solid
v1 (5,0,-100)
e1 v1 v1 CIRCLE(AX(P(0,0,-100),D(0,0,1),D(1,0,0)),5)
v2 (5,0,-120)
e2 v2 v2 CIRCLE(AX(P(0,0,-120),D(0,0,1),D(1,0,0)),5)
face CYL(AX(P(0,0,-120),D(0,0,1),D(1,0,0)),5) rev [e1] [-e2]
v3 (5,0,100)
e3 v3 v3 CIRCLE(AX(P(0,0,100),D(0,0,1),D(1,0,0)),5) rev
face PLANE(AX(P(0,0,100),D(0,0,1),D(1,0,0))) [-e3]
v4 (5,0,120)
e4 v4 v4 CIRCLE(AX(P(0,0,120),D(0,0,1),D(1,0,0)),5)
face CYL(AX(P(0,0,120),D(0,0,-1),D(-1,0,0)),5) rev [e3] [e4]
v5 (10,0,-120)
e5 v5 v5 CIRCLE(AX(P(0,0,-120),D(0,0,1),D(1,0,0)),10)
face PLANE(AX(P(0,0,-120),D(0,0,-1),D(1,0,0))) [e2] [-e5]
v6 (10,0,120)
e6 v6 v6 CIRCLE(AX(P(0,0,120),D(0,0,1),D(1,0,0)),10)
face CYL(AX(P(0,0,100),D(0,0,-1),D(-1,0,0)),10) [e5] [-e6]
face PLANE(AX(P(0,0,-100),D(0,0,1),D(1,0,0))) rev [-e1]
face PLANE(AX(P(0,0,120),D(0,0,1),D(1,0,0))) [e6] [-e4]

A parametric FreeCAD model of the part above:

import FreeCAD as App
import Part
import Sketcher
Q = App.Units.Quantity

doc = App.newDocument("Part")
body = doc.addObject("PartDesign::Body", "Body")

# Sketch on XY plane
sketch1 = doc.addObject("Sketcher::SketchObject", "Sketch")
body.addObject(sketch1)
sketch1.AttachmentSupport = (doc.XY_Plane, [""])
sketch1.MapMode = "FlatFace"
sketch1.addGeometry(Part.Circle(App.Vector(0, 0, 0), App.Vector(0, 0, 1), 10), False)
sketch1.addConstraint(Sketcher.Constraint("Coincident", 0, 3, -1, 1))
sketch1.addConstraint(Sketcher.Constraint("Diameter", 0, Q("20 mm")))
pad1 = doc.addObject("PartDesign::Pad", "Pad")
body.addObject(pad1)
pad1.Profile = sketch1
pad1.Length = 200
pad1.Midplane = True

# Sketch on XY plane
sketch2 = doc.addObject("Sketcher::SketchObject", "Sketch001")
body.addObject(sketch2)
sketch2.AttachmentSupport = (doc.XY_Plane, [""])
sketch2.MapMode = "FlatFace"
sketch2.AttachmentOffset = App.Placement(App.Vector(0, 0, 120), App.Rotation())
sketch2.addGeometry(Part.Circle(App.Vector(0, 0, 0), App.Vector(0, 0, 1), 10), False)
sketch2.addGeometry(Part.Circle(App.Vector(0, 0, 0), App.Vector(0, 0, 1), 5), False)
sketch2.addConstraint(Sketcher.Constraint("Coincident", 0, 3, -1, 1))
sketch2.addConstraint(Sketcher.Constraint("Coincident", 1, 3, -1, 1))
sketch2.addConstraint(Sketcher.Constraint("Diameter", 0, Q("20 mm")))
sketch2.addConstraint(Sketcher.Constraint("Diameter", 1, Q("10 mm")))
pad2 = doc.addObject("PartDesign::Pad", "Pad001")
body.addObject(pad2)
pad2.Profile = sketch2
pad2.Length = 20
pad2.Reversed = True
doc.recompute()

mirrored = doc.addObject("PartDesign::Mirrored", "Mirrored")
body.addObject(mirrored)
mirrored.Originals = [pad2]
mirrored.MirrorPlane = (doc.XY_Plane, [""])
body.Tip = mirrored

doc.recompute()
